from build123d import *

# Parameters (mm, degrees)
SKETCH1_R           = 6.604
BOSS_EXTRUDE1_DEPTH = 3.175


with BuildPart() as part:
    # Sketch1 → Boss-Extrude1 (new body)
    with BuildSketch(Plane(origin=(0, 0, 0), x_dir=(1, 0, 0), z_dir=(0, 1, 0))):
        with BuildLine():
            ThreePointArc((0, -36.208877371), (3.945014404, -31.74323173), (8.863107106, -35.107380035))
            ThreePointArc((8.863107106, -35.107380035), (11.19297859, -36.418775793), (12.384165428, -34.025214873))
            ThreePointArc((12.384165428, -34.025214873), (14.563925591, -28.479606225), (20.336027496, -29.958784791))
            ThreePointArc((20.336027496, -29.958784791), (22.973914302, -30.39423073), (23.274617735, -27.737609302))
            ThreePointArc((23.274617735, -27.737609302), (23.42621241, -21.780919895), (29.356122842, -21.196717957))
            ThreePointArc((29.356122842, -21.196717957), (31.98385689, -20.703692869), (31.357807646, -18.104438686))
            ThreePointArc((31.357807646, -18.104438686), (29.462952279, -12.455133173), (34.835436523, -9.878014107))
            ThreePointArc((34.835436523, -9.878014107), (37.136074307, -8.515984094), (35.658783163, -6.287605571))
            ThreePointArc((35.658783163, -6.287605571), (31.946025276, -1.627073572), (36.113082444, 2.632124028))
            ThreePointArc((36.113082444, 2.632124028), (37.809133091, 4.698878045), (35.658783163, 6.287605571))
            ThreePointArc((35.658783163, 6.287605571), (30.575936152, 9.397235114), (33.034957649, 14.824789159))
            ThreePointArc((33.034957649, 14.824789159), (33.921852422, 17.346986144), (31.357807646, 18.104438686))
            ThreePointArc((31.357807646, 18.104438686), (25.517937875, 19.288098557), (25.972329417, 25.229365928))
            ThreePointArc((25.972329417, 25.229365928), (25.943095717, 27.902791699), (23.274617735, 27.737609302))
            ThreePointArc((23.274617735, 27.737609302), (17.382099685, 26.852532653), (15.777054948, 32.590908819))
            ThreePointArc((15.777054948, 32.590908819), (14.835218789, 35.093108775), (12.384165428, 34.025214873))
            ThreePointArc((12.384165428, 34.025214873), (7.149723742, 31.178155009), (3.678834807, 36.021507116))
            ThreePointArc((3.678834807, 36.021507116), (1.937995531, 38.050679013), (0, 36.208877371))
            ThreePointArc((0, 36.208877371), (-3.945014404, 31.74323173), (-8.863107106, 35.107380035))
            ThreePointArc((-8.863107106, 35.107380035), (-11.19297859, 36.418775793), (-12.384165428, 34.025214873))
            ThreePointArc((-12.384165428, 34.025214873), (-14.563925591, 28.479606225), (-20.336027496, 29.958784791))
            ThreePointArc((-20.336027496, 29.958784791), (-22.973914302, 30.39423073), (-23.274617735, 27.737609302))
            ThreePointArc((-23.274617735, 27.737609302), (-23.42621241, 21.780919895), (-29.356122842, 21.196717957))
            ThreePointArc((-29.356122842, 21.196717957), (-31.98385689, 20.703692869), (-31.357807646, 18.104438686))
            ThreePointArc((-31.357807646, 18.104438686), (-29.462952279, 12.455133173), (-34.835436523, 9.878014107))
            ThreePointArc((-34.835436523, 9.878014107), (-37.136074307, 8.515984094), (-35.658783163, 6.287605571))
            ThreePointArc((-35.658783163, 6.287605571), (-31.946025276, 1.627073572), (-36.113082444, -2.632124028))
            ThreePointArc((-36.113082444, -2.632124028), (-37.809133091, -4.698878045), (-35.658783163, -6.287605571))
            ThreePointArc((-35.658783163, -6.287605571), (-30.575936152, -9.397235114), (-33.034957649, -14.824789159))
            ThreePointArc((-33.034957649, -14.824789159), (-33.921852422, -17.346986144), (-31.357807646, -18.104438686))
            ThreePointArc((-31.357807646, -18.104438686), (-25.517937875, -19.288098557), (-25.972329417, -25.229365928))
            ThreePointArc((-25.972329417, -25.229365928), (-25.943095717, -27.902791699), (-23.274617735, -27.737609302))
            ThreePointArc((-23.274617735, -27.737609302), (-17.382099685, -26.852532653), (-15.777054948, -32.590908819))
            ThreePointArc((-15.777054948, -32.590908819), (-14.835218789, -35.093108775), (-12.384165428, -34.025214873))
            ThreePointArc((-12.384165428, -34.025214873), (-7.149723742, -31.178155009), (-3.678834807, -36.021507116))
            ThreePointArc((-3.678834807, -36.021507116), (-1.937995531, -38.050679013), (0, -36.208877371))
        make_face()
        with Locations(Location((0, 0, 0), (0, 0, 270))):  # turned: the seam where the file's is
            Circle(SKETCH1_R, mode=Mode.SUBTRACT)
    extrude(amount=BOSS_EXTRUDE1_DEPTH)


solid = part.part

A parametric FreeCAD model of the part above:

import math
import FreeCAD as App
import Part
import Sketcher
Q = App.Units.Quantity

doc = App.newDocument("Part")
body = doc.addObject("PartDesign::Body", "Body")

# Sketch on XZ plane
sketch1 = body.newObject("Sketcher::SketchObject", "Sketch")
sketch1.AttachmentSupport = (doc.getObject("XZ_Plane"), [""])
sketch1.MapMode = "FlatFace"
sketch1.addGeometry([
    Part.ArcOfCircle(Part.Circle(App.Vector(4.5, 36.2, 0), App.Vector(0, 0, 1), 4.5), math.radians(180), math.radians(346)),  # 0
    Part.ArcOfCircle(Part.Circle(App.Vector(10.7, 34.7, 0), App.Vector(0, 0, 1), 1.8), math.radians(-20), math.radians(166)),  # 1
    Part.ArcOfCircle(Part.Circle(App.Vector(16.6, 32.5, 0), App.Vector(0, 0, 1), 4.5), math.radians(160), math.radians(326)),  # 2
    Part.ArcOfCircle(Part.Circle(App.Vector(21.9, 28.9, 0), App.Vector(0, 0, 1), 1.8), math.radians(-40), math.radians(146)),  # 3
    Part.ArcOfCircle(Part.Circle(App.Vector(26.7, 24.8, 0), App.Vector(0, 0, 1), 4.5), math.radians(140), math.radians(306)),  # 4
    Part.ArcOfCircle(Part.Circle(App.Vector(30.4, 19.7, 0), App.Vector(0, 0, 1), 1.8), math.radians(-60), math.radians(126)),  # 5
    Part.ArcOfCircle(Part.Circle(App.Vector(33.6, 14.2, 0), App.Vector(0, 0, 1), 4.5), math.radians(120), math.radians(286)),  # 6
    Part.ArcOfCircle(Part.Circle(App.Vector(35.3, 8.1, 0), App.Vector(0, 0, 1), 1.8), math.radians(-80), math.radians(106)),  # 7
    Part.ArcOfCircle(Part.Circle(App.Vector(36.4, 1.9, 0), App.Vector(0, 0, 1), 4.5), math.radians(100), math.radians(266)),  # 8
    Part.ArcOfCircle(Part.Circle(App.Vector(36, -4.5, 0), App.Vector(0, 0, 1), 1.8), math.radians(-100), math.radians(86)),  # 9
    Part.ArcOfCircle(Part.Circle(App.Vector(34.9, -10.7, 0), App.Vector(0, 0, 1), 4.5), math.radians(80), math.radians(246)),  # 10
    Part.ArcOfCircle(Part.Circle(App.Vector(32.3, -16.5, 0), App.Vector(0, 0, 1), 1.8), math.radians(-120), math.radians(66)),  # 11
    Part.ArcOfCircle(Part.Circle(App.Vector(29.1, -22, 0), App.Vector(0, 0, 1), 4.5), math.radians(60), math.radians(226)),  # 12
    Part.ArcOfCircle(Part.Circle(App.Vector(24.7, -26.6, 0), App.Vector(0, 0, 1), 1.8), math.radians(-140), math.radians(46)),  # 13
    Part.ArcOfCircle(Part.Circle(App.Vector(19.8, -30.6, 0), App.Vector(0, 0, 1), 4.5), math.radians(40), math.radians(206)),  # 14
    Part.ArcOfCircle(Part.Circle(App.Vector(14.1, -33.4, 0), App.Vector(0, 0, 1), 1.8), math.radians(-160), math.radians(26)),  # 15
    Part.ArcOfCircle(Part.Circle(App.Vector(8.2, -35.6, 0), App.Vector(0, 0, 1), 4.5), math.radians(20), math.radians(186)),  # 16
    Part.ArcOfCircle(Part.Circle(App.Vector(1.8, -36.2, 0), App.Vector(0, 0, 1), 1.8), math.radians(180), math.radians(366)),  # 17
    Part.ArcOfCircle(Part.Circle(App.Vector(-4.5, -36.2, 0), App.Vector(0, 0, 1), 4.5), math.radians(0), math.radians(166)),  # 18
    Part.ArcOfCircle(Part.Circle(App.Vector(-10.7, -34.7, 0), App.Vector(0, 0, 1), 1.8), math.radians(160), math.radians(346)),  # 19
    Part.ArcOfCircle(Part.Circle(App.Vector(-16.6, -32.5, 0), App.Vector(0, 0, 1), 4.5), math.radians(-20), math.radians(146)),  # 20
    Part.ArcOfCircle(Part.Circle(App.Vector(-21.9, -28.9, 0), App.Vector(0, 0, 1), 1.8), math.radians(140), math.radians(326)),  # 21
    Part.ArcOfCircle(Part.Circle(App.Vector(-26.7, -24.8, 0), App.Vector(0, 0, 1), 4.5), math.radians(-40), math.radians(126)),  # 22
    Part.ArcOfCircle(Part.Circle(App.Vector(-30.4, -19.7, 0), App.Vector(0, 0, 1), 1.8), math.radians(120), math.radians(306)),  # 23
    Part.ArcOfCircle(Part.Circle(App.Vector(-33.6, -14.2, 0), App.Vector(0, 0, 1), 4.5), math.radians(-60), math.radians(106)),  # 24
    Part.ArcOfCircle(Part.Circle(App.Vector(-35.3, -8.1, 0), App.Vector(0, 0, 1), 1.8), math.radians(100), math.radians(286)),  # 25
    Part.ArcOfCircle(Part.Circle(App.Vector(-36.4, -1.9, 0), App.Vector(0, 0, 1), 4.5), math.radians(-80), math.radians(86)),  # 26
    Part.ArcOfCircle(Part.Circle(App.Vector(-36, 4.5, 0), App.Vector(0, 0, 1), 1.8), math.radians(80), math.radians(266)),  # 27
    Part.ArcOfCircle(Part.Circle(App.Vector(-34.9, 10.7, 0), App.Vector(0, 0, 1), 4.5), math.radians(-100), math.radians(66)),  # 28
    Part.ArcOfCircle(Part.Circle(App.Vector(-32.3, 16.5, 0), App.Vector(0, 0, 1), 1.8), math.radians(60), math.radians(246)),  # 29
    Part.ArcOfCircle(Part.Circle(App.Vector(-29.1, 22, 0), App.Vector(0, 0, 1), 4.5), math.radians(-120), math.radians(46)),  # 30
    Part.ArcOfCircle(Part.Circle(App.Vector(-24.7, 26.6, 0), App.Vector(0, 0, 1), 1.8), math.radians(40), math.radians(226)),  # 31
    Part.ArcOfCircle(Part.Circle(App.Vector(-19.8, 30.6, 0), App.Vector(0, 0, 1), 4.5), math.radians(-140), math.radians(26)),  # 32
    Part.ArcOfCircle(Part.Circle(App.Vector(-14.1, 33.4, 0), App.Vector(0, 0, 1), 1.8), math.radians(20), math.radians(206)),  # 33
    Part.ArcOfCircle(Part.Circle(App.Vector(-8.2, 35.6, 0), App.Vector(0, 0, 1), 4.5), math.radians(-160), math.radians(6)),  # 34
    Part.ArcOfCircle(Part.Circle(App.Vector(-1.8, 36.2, 0), App.Vector(0, 0, 1), 1.8), math.radians(0), math.radians(186)),  # 35
    Part.Circle(App.Vector(0, 0, 0), App.Vector(0, 0, 1), 6.6),  # 36
], False)
sketch1.addConstraint([
    Sketcher.Constraint("Tangent", 0, 2, 1, 2),
    Sketcher.Constraint("Tangent", 1, 1, 2, 1),
    Sketcher.Constraint("Tangent", 2, 2, 3, 2),
    Sketcher.Constraint("Tangent", 3, 1, 4, 1),
    Sketcher.Constraint("Tangent", 4, 2, 5, 2),
    Sketcher.Constraint("Tangent", 5, 1, 6, 1),
    Sketcher.Constraint("Tangent", 6, 2, 7, 2),
    Sketcher.Constraint("Tangent", 7, 1, 8, 1),
    Sketcher.Constraint("Tangent", 8, 2, 9, 2),
    Sketcher.Constraint("Tangent", 9, 1, 10, 1),
    Sketcher.Constraint("Tangent", 10, 2, 11, 2),
    Sketcher.Constraint("Tangent", 11, 1, 12, 1),
    Sketcher.Constraint("Tangent", 12, 2, 13, 2),
    Sketcher.Constraint("Tangent", 13, 1, 14, 1),
    Sketcher.Constraint("Tangent", 14, 2, 15, 2),
    Sketcher.Constraint("Tangent", 15, 1, 16, 1),
    Sketcher.Constraint("Tangent", 16, 2, 17, 2),
    Sketcher.Constraint("Tangent", 17, 1, 18, 1),
    Sketcher.Constraint("Tangent", 18, 2, 19, 2),
    Sketcher.Constraint("Tangent", 19, 1, 20, 1),
    Sketcher.Constraint("Tangent", 20, 2, 21, 2),
    Sketcher.Constraint("Tangent", 21, 1, 22, 1),
    Sketcher.Constraint("Tangent", 22, 2, 23, 2),
    Sketcher.Constraint("Tangent", 23, 1, 24, 1),
    Sketcher.Constraint("Tangent", 24, 2, 25, 2),
    Sketcher.Constraint("Tangent", 25, 1, 26, 1),
    Sketcher.Constraint("Tangent", 26, 2, 27, 2),
    Sketcher.Constraint("Tangent", 27, 1, 28, 1),
    Sketcher.Constraint("Tangent", 28, 2, 29, 2),
    Sketcher.Constraint("Tangent", 29, 1, 30, 1),
    Sketcher.Constraint("Tangent", 30, 2, 31, 2),
    Sketcher.Constraint("Tangent", 31, 1, 32, 1),
    Sketcher.Constraint("Tangent", 32, 2, 33, 2),
    Sketcher.Constraint("Tangent", 33, 1, 34, 1),
    Sketcher.Constraint("Tangent", 34, 2, 35, 2),
    Sketcher.Constraint("Tangent", 35, 1, 0, 1),
    Sketcher.Constraint("Coincident", 36, 3, -1, 1),
    Sketcher.Constraint("Equal", 0, 2),
    Sketcher.Constraint("Equal", 1, 3),
    Sketcher.Constraint("Equal", 2, 4),
    Sketcher.Constraint("Equal", 3, 5),
    Sketcher.Constraint("Equal", 4, 6),
    Sketcher.Constraint("Equal", 5, 7),
    Sketcher.Constraint("Equal", 6, 8),
    Sketcher.Constraint("Equal", 7, 9),
    Sketcher.Constraint("Equal", 8, 10),
    Sketcher.Constraint("Equal", 9, 11),
    Sketcher.Constraint("Equal", 10, 12),
    Sketcher.Constraint("Equal", 11, 13),
    Sketcher.Constraint("Equal", 12, 14),
    Sketcher.Constraint("Equal", 13, 15),
    Sketcher.Constraint("Equal", 14, 16),
    Sketcher.Constraint("Equal", 15, 17),
    Sketcher.Constraint("Equal", 16, 18),
    Sketcher.Constraint("Equal", 17, 19),
    Sketcher.Constraint("Equal", 18, 20),
    Sketcher.Constraint("Equal", 19, 21),
    Sketcher.Constraint("Equal", 20, 22),
    Sketcher.Constraint("Equal", 21, 23),
    Sketcher.Constraint("Equal", 22, 24),
    Sketcher.Constraint("Equal", 23, 25),
    Sketcher.Constraint("Equal", 24, 26),
    Sketcher.Constraint("Equal", 25, 27),
    Sketcher.Constraint("Equal", 26, 28),
    Sketcher.Constraint("Equal", 27, 29),
    Sketcher.Constraint("Equal", 28, 30),
    Sketcher.Constraint("Equal", 29, 31),
    Sketcher.Constraint("Equal", 30, 32),
    Sketcher.Constraint("Equal", 31, 33),
    Sketcher.Constraint("Equal", 32, 34),
    Sketcher.Constraint("Equal", 33, 35),
    Sketcher.Constraint("Symmetric", 0, 3, 18, 3, -1, 1),
    Sketcher.Constraint("Symmetric", 2, 3, 20, 3, -1, 1),
    Sketcher.Constraint("Symmetric", 4, 3, 22, 3, -1, 1),
    Sketcher.Constraint("Symmetric", 6, 3, 24, 3, -1, 1),
    Sketcher.Constraint("Symmetric", 8, 3, 26, 3, -1, 1),
    Sketcher.Constraint("Symmetric", 10, 3, 28, 3, -1, 1),
    Sketcher.Constraint("Symmetric", 12, 3, 30, 3, -1, 1),
    Sketcher.Constraint("Symmetric", 14, 3, 32, 3, -1, 1),
    Sketcher.Constraint("Symmetric", 16, 3, 34, 3, -1, 1),
    Sketcher.Constraint("Symmetric", 15, 1, 19, 1, -2),
    Sketcher.Constraint("Symmetric", 13, 1, 21, 1, -2),
    Sketcher.Constraint("Symmetric", 11, 1, 23, 1, -2),
    Sketcher.Constraint("Symmetric", 9, 1, 25, 1, -2),
    Sketcher.Constraint("PointOnObject", 17, 1, -2),
    Sketcher.Constraint("Horizontal", 17, 3, 18, 3),
    Sketcher.Constraint("Diameter", 36, Q("0.52 in")),
    Sketcher.Constraint("Radius", 0, 4.5),
    Sketcher.Constraint("Radius", 1, 1.844189),
    Sketcher.Constraint("DistanceX", -1, 1, 8, 3, 36.4402),
    Sketcher.Constraint("DistanceY", -1, 1, 3, 3, 28.923031),
    Sketcher.Constraint("DistanceY", -1, 1, 8, 3, 1.855971),
    Sketcher.Constraint("DistanceY", 10, 3, -1, 1, 10.71924),
    Sketcher.Constraint("DistanceX", -1, 1, 13, 3, 24.687348),
    Sketcher.Constraint("DistanceX", -1, 1, 16, 3, 8.155549),
    Sketcher.Constraint("DistanceY", -1, 1, 0, 2, 35.10738),
    Sketcher.Constraint("DistanceY", -1, 1, 3, 1, 27.737609),
])
pad1 = body.newObject("PartDesign::Pad", "Pad")
pad1.Profile = sketch1
pad1.Length = Q("0.125 in")
pad1.Reversed = True

doc.recompute()
